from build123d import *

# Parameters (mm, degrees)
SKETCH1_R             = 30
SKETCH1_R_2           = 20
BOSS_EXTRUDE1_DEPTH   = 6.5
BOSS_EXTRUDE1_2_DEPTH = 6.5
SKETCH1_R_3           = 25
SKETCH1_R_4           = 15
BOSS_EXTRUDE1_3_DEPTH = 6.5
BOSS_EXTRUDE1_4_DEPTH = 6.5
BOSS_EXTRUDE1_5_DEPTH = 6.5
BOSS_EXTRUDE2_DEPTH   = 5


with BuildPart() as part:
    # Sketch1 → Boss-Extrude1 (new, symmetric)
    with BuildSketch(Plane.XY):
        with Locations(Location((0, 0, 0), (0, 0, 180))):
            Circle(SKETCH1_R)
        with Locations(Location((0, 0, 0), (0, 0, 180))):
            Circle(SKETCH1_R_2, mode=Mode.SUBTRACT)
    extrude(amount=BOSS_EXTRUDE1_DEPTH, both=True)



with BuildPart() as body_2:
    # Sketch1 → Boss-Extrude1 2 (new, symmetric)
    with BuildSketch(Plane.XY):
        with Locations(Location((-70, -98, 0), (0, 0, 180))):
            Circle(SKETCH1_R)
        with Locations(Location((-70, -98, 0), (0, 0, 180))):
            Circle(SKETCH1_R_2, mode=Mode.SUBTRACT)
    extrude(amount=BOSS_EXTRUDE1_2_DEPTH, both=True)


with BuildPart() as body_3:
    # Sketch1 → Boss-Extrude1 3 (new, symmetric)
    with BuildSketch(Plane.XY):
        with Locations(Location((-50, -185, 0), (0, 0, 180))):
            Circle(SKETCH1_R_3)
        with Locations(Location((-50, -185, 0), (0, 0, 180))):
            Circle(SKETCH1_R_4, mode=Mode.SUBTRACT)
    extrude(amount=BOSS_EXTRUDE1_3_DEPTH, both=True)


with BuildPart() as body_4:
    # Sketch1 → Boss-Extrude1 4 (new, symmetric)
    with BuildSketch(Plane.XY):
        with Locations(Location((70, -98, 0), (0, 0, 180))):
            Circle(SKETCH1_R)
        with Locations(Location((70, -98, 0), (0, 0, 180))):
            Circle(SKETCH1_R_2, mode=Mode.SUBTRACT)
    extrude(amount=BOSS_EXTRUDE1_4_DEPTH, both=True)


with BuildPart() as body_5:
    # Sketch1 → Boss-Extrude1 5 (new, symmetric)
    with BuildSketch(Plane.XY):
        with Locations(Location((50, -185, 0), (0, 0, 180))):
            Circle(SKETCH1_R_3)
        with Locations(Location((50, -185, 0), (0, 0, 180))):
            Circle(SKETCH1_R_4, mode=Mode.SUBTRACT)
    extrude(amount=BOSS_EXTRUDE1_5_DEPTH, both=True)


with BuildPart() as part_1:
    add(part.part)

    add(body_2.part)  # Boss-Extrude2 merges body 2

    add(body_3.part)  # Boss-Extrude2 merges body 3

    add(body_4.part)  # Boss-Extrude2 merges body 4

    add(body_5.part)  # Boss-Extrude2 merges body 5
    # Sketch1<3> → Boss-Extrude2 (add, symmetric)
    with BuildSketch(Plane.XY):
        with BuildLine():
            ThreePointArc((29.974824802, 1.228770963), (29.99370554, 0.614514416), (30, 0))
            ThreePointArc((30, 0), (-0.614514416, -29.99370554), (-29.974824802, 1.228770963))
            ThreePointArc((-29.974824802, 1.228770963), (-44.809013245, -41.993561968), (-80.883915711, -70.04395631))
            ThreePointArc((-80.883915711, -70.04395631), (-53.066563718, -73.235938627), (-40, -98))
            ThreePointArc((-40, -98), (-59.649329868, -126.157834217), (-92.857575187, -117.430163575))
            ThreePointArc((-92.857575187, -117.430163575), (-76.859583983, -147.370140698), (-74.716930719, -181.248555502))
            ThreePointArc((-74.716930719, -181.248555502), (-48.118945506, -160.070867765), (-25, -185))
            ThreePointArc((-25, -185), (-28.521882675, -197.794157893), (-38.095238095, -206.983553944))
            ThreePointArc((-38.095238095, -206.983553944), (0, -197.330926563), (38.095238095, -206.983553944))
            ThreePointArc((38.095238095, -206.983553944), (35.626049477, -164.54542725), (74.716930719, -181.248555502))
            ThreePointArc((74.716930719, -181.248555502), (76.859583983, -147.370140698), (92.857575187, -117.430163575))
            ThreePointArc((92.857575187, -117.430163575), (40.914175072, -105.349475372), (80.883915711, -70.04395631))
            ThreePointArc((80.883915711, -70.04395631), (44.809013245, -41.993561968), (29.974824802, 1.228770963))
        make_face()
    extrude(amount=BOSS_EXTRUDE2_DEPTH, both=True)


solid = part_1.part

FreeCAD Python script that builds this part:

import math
import FreeCAD as App
import Part
import Sketcher

V = App.Vector

doc = App.newDocument("Part")
params = doc.addObject("Spreadsheet::Sheet", "Params")
for row, (alias, value) in enumerate([
    ("sketch1_diameter", "60 mm"),
    ("sketch1_diameter2", "40 mm"),
    ("pad1_length", "13 mm"),
    ("sketch2_diameter", "60 mm"),
    ("sketch2_diameter2", "40 mm"),
    ("pad2_length", "13 mm"),
    ("sketch3_diameter", "50 mm"),
    ("sketch3_diameter2", "30 mm"),
    ("pad3_length", "13 mm"),
    ("sketch4_diameter", "60 mm"),
    ("sketch4_diameter2", "40 mm"),
    ("pad4_length", "13 mm"),
    ("sketch5_diameter", "50 mm"),
    ("sketch5_diameter2", "30 mm"),
    ("pad5_length", "13 mm"),
    ("sketch6_radius", "30.000001 mm"),
    ("sketch6_radius2", "80 mm"),
    ("sketch6_radius3", "25 mm"),
    ("pad6_length", "10 mm"),
], start=1):
    params.set(f"A{row}", alias)
    params.set(f"B{row}", "=" + value)
    params.setAlias(f"B{row}", alias)

body = doc.addObject("PartDesign::Body", "Body")

sketch1 = doc.addObject("Sketcher::SketchObject", "Sketch")
body.addObject(sketch1)
sketch1.AttachmentSupport = (doc.XY_Plane, [""])
sketch1.MapMode = "FlatFace"
sketch1.addGeometry([
    Part.Circle(V(0, 0, 0), V(0, 0, 1), 30),
    Part.Circle(V(0, 0, 0), V(0, 0, 1), 20),
], False)
sketch1.addConstraint([
    Sketcher.Constraint("Coincident", 0, 3, -1, 1),
    Sketcher.Constraint("Coincident", 1, 3, -1, 1),
    Sketcher.Constraint("Diameter", 0, 60.0),
    Sketcher.Constraint("Diameter", 1, 40.0),
])
sketch1.setExpression("Constraints[2]", "Params.sketch1_diameter")
sketch1.setExpression("Constraints[3]", "Params.sketch1_diameter2")
pad1 = doc.addObject("PartDesign::Pad", "Pad")
body.addObject(pad1)
pad1.Profile = sketch1
pad1.setExpression("Length", "Params.pad1_length")
pad1.Midplane = True
body2 = doc.addObject("PartDesign::Body", "Body001")

sketch2 = doc.addObject("Sketcher::SketchObject", "Sketch001")
body2.addObject(sketch2)
sketch2.AttachmentSupport = (doc.getObject("XY_Plane001"), [""])
sketch2.MapMode = "FlatFace"
sketch2.addGeometry([
    Part.Circle(V(-70, -98, 0), V(0, 0, 1), 30),
    Part.Circle(V(-70, -98, 0), V(0, 0, 1), 20),
], False)
sketch2.addConstraint([
    Sketcher.Constraint("Coincident", 1, 3, 0, 3),
    Sketcher.Constraint("Diameter", 0, 60.0),
    Sketcher.Constraint("Diameter", 1, 40.0),
    Sketcher.Constraint("DistanceX", 0, 3, -1, 1, 70.0),
    Sketcher.Constraint("DistanceY", 0, 3, -1, 1, 98.0),
])
sketch2.setExpression("Constraints[1]", "Params.sketch2_diameter")
sketch2.setExpression("Constraints[2]", "Params.sketch2_diameter2")
pad2 = doc.addObject("PartDesign::Pad", "Pad001")
body2.addObject(pad2)
pad2.Profile = sketch2
pad2.setExpression("Length", "Params.pad2_length")
pad2.Midplane = True
body3 = doc.addObject("PartDesign::Body", "Body002")

sketch3 = doc.addObject("Sketcher::SketchObject", "Sketch002")
body3.addObject(sketch3)
sketch3.AttachmentSupport = (doc.getObject("XY_Plane002"), [""])
sketch3.MapMode = "FlatFace"
sketch3.addGeometry([
    Part.Circle(V(-50, -185, 0), V(0, 0, 1), 25),
    Part.Circle(V(-50, -185, 0), V(0, 0, 1), 15),
], False)
sketch3.addConstraint([
    Sketcher.Constraint("Coincident", 1, 3, 0, 3),
    Sketcher.Constraint("Diameter", 0, 50.0),
    Sketcher.Constraint("Diameter", 1, 30.0),
    Sketcher.Constraint("DistanceX", 0, 3, -1, 1, 50.0),
    Sketcher.Constraint("DistanceY", 0, 3, -1, 1, 185.0),
])
sketch3.setExpression("Constraints[1]", "Params.sketch3_diameter")
sketch3.setExpression("Constraints[2]", "Params.sketch3_diameter2")
pad3 = doc.addObject("PartDesign::Pad", "Pad002")
body3.addObject(pad3)
pad3.Profile = sketch3
pad3.setExpression("Length", "Params.pad3_length")
pad3.Midplane = True
body4 = doc.addObject("PartDesign::Body", "Body003")

sketch4 = doc.addObject("Sketcher::SketchObject", "Sketch003")
body4.addObject(sketch4)
sketch4.AttachmentSupport = (doc.getObject("XY_Plane003"), [""])
sketch4.MapMode = "FlatFace"
sketch4.addGeometry([
    Part.Circle(V(70, -98, 0), V(0, 0, 1), 30),
    Part.Circle(V(70, -98, 0), V(0, 0, 1), 20),
], False)
sketch4.addConstraint([
    Sketcher.Constraint("Coincident", 1, 3, 0, 3),
    Sketcher.Constraint("Diameter", 0, 60.0),
    Sketcher.Constraint("Diameter", 1, 40.0),
    Sketcher.Constraint("DistanceX", -1, 1, 0, 3, 70.0),
    Sketcher.Constraint("DistanceY", 0, 3, -1, 1, 98.0),
])
sketch4.setExpression("Constraints[1]", "Params.sketch4_diameter")
sketch4.setExpression("Constraints[2]", "Params.sketch4_diameter2")
pad4 = doc.addObject("PartDesign::Pad", "Pad003")
body4.addObject(pad4)
pad4.Profile = sketch4
pad4.setExpression("Length", "Params.pad4_length")
pad4.Midplane = True
body5 = doc.addObject("PartDesign::Body", "Body004")

sketch5 = doc.addObject("Sketcher::SketchObject", "Sketch004")
body5.addObject(sketch5)
sketch5.AttachmentSupport = (doc.getObject("XY_Plane004"), [""])
sketch5.MapMode = "FlatFace"
sketch5.addGeometry([
    Part.Circle(V(50, -185, 0), V(0, 0, 1), 25),
    Part.Circle(V(50, -185, 0), V(0, 0, 1), 15),
], False)
sketch5.addConstraint([
    Sketcher.Constraint("Coincident", 1, 3, 0, 3),
    Sketcher.Constraint("Diameter", 0, 50.0),
    Sketcher.Constraint("Diameter", 1, 30.0),
    Sketcher.Constraint("DistanceX", -1, 1, 0, 3, 50.0),
    Sketcher.Constraint("DistanceY", 0, 3, -1, 1, 185.0),
])
sketch5.setExpression("Constraints[1]", "Params.sketch5_diameter")
sketch5.setExpression("Constraints[2]", "Params.sketch5_diameter2")
pad5 = doc.addObject("PartDesign::Pad", "Pad004")
body5.addObject(pad5)
pad5.Profile = sketch5
pad5.setExpression("Length", "Params.pad5_length")
pad5.Midplane = True
body.AllowCompound = True
doc.recompute()

boolean = doc.addObject("PartDesign::Boolean", "Boolean")
body.addObject(boolean)
boolean.Type = "Fuse"
boolean.addObjects([body2])
doc.recompute()

boolean2 = doc.addObject("PartDesign::Boolean", "Boolean001")
body.addObject(boolean2)
boolean2.Type = "Fuse"
boolean2.addObjects([body3])
doc.recompute()

boolean3 = doc.addObject("PartDesign::Boolean", "Boolean002")
body.addObject(boolean3)
boolean3.Type = "Fuse"
boolean3.addObjects([body4])
doc.recompute()

boolean4 = doc.addObject("PartDesign::Boolean", "Boolean003")
body.addObject(boolean4)
boolean4.Type = "Fuse"
boolean4.addObjects([body5])

sketch6 = doc.addObject("Sketcher::SketchObject", "Sketch005")
body.addObject(sketch6)
sketch6.AttachmentSupport = (doc.XY_Plane, [""])
sketch6.MapMode = "FlatFace"
sketch6.addGeometry([
    Part.ArcOfCircle(Part.Circle(V(0, 0, 0), V(0, 0, 1), 30), math.radians(0), math.radians(2.35)),
    Part.ArcOfCircle(Part.Circle(V(0, 0, 0), V(0, 0, 1), 30), math.radians(178), math.radians(360)),
    Part.ArcOfCircle(Part.Circle(V(-109.9, 4.5, 0), V(0, 0, 1), 80), math.radians(-69), math.radians(-2)),
    Part.ArcOfCircle(Part.Circle(V(-70, -98, 0), V(0, 0, 1), 30), math.radians(0), math.radians(111)),
    Part.ArcOfCircle(Part.Circle(V(-70, -98, 0), V(0, 0, 1), 30), math.radians(-140), math.radians(0)),
    Part.ArcOfCircle(Part.Circle(V(-153.8, -169.2, 0), V(0, 0, 1), 80), math.radians(-9), math.radians(40)),
    Part.ArcOfCircle(Part.Circle(V(-50, -185, 0), V(0, 0, 1), 25), math.radians(0), math.radians(171)),
    Part.ArcOfCircle(Part.Circle(V(-50, -185, 0), V(0, 0, 1), 25), math.radians(-62), math.radians(0)),
    Part.ArcOfCircle(Part.Circle(V(0, -277.3, 0), V(0, 0, 1), 80), math.radians(62), math.radians(118)),
    Part.ArcOfCircle(Part.Circle(V(50, -185, 0), V(0, 0, 1), 25), math.radians(9), math.radians(242)),
    Part.ArcOfCircle(Part.Circle(V(153.8, -169.2, 0), V(0, 0, 1), 80), math.radians(140), math.radians(189)),
    Part.ArcOfCircle(Part.Circle(V(70, -98, 0), V(0, 0, 1), 30), math.radians(69), math.radians(320)),
    Part.ArcOfCircle(Part.Circle(V(109.9, 4.5, 0), V(0, 0, 1), 80), math.radians(-178), math.radians(-111)),
], False)
sketch6.addConstraint([
    Sketcher.Constraint("Tangent", 0, 1, 1, 2),
    Sketcher.Constraint("Tangent", 1, 1, 2, 2),
    Sketcher.Constraint("Tangent", 2, 1, 3, 2),
    Sketcher.Constraint("Tangent", 3, 1, 4, 2),
    Sketcher.Constraint("Tangent", 4, 1, 5, 2),
    Sketcher.Constraint("Tangent", 5, 1, 6, 2),
    Sketcher.Constraint("Tangent", 6, 1, 7, 2),
    Sketcher.Constraint("Tangent", 7, 1, 8, 2),
    Sketcher.Constraint("Tangent", 8, 1, 9, 2),
    Sketcher.Constraint("Tangent", 9, 1, 10, 2),
    Sketcher.Constraint("Tangent", 10, 1, 11, 2),
    Sketcher.Constraint("Tangent", 11, 1, 12, 2),
    Sketcher.Constraint("Tangent", 12, 1, 0, 2),
    Sketcher.Constraint("Coincident", 0, 3, -1, 1),
    Sketcher.Constraint("Equal", 0, 1),
    Sketcher.Constraint("Equal", 1, 3),
    Sketcher.Constraint("Equal", 3, 4),
    Sketcher.Constraint("Equal", 2, 5),
    Sketcher.Constraint("Equal", 6, 7),
    Sketcher.Constraint("Equal", 5, 8),
    Sketcher.Constraint("Equal", 7, 9),
    Sketcher.Constraint("Equal", 8, 10),
    Sketcher.Constraint("Equal", 4, 11),
    Sketcher.Constraint("Equal", 10, 12),
    Sketcher.Constraint("Symmetric", 6, 3, 9, 3, -2),
    Sketcher.Constraint("Symmetric", 3, 3, 11, 3, -2),
    Sketcher.Constraint("PointOnObject", 0, 1, -1),
    Sketcher.Constraint("Horizontal", 11, 3, 3, 1),
    Sketcher.Constraint("Horizontal", 9, 3, 6, 1),
    Sketcher.Constraint("Radius", 0, 30.000001),
    Sketcher.Constraint("Radius", 2, 80.0),
    Sketcher.Constraint("Radius", 6, 25.0),
    Sketcher.Constraint("DistanceX", 3, 3, -1, 1, 70.0),
    Sketcher.Constraint("DistanceY", 3, 3, -1, 1, 98.0),
    Sketcher.Constraint("DistanceX", 6, 3, -1, 1, 50.0),
    Sketcher.Constraint("DistanceY", 6, 3, -1, 1, 185.0),
])
sketch6.setExpression("Constraints[29]", "Params.sketch6_radius")
sketch6.setExpression("Constraints[30]", "Params.sketch6_radius2")
sketch6.setExpression("Constraints[31]", "Params.sketch6_radius3")
pad6 = doc.addObject("PartDesign::Pad", "Pad005")
body.addObject(pad6)
pad6.Profile = sketch6
pad6.setExpression("Length", "Params.pad6_length")
pad6.Midplane = True

doc.recompute()
